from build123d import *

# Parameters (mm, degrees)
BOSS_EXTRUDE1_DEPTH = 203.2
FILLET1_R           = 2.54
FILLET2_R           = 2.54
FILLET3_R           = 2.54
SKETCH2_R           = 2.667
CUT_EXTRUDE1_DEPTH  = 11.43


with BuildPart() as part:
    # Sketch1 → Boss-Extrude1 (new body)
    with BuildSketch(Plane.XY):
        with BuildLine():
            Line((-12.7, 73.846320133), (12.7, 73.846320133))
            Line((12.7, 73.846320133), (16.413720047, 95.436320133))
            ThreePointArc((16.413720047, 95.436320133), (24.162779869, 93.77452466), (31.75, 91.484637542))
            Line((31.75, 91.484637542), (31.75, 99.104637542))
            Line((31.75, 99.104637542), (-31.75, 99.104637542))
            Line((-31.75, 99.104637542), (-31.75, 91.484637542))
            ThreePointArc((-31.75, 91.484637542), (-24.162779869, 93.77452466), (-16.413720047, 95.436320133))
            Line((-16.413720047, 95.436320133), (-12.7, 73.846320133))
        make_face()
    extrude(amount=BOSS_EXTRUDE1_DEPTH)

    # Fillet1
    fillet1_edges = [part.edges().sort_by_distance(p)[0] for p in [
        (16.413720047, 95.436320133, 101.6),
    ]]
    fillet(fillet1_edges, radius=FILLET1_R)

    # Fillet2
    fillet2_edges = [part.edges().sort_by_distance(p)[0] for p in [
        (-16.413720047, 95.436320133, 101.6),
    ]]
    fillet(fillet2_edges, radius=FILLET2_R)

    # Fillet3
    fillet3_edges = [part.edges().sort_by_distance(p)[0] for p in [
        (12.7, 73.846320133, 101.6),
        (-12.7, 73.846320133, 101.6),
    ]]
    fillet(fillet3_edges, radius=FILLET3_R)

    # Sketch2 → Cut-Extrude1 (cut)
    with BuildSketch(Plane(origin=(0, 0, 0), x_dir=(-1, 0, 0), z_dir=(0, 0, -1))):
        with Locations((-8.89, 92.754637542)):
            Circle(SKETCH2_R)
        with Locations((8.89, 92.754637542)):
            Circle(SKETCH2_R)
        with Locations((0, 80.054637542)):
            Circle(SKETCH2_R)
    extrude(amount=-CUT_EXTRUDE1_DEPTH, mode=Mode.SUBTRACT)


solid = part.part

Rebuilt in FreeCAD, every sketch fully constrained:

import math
import FreeCAD as App
import Part
import Sketcher
from FreeCAD import Vector
Q = App.Units.Quantity


def edges_at(feature, points):
    """Names of the edges that pass closest to the given points."""
    edges = feature.Shape.Edges
    near = lambda p: min(range(len(edges)), key=lambda i: edges[i].distToShape(Part.Vertex(*p))[0])
    return sorted({f"Edge{near(p) + 1}" for p in points})

doc = App.newDocument("Part")
body = doc.addObject("PartDesign::Body", "Body")

# Sketch on XY plane
sketch1 = doc.addObject("Sketcher::SketchObject", "Sketch")
body.addObject(sketch1)
sketch1.AttachmentSupport = (doc.XY_Plane, [""])
sketch1.MapMode = "FlatFace"
sketch1.addGeometry(Part.LineSegment(Vector(-13, 74, 0), Vector(13, 74, 0)), False)
sketch1.addGeometry(Part.LineSegment(Vector(13, 74, 0), Vector(16, 95, 0)), False)
sketch1.addGeometry(Part.ArcOfCircle(Part.Circle(Vector(0, 0, 0), Vector(0, 0, 1), 97), math.radians(70.86), math.radians(80.24)), False)
sketch1.addGeometry(Part.LineSegment(Vector(32, 91, 0), Vector(32, 99, 0)), False)
sketch1.addGeometry(Part.LineSegment(Vector(32, 99, 0), Vector(-32, 99, 0)), False)
sketch1.addGeometry(Part.LineSegment(Vector(-32, 99, 0), Vector(-32, 91, 0)), False)
sketch1.addGeometry(Part.ArcOfCircle(Part.Circle(Vector(0, 0, 0), Vector(0, 0, 1), 97), math.radians(99.76), math.radians(109.14)), False)
sketch1.addGeometry(Part.LineSegment(Vector(-16, 95, 0), Vector(-13, 74, 0)), False)
sketch1.addConstraint(Sketcher.Constraint("Coincident", 0, 2, 1, 1))
sketch1.addConstraint(Sketcher.Constraint("Coincident", 1, 2, 2, 2))
sketch1.addConstraint(Sketcher.Constraint("Coincident", 2, 1, 3, 1))
sketch1.addConstraint(Sketcher.Constraint("Coincident", 3, 2, 4, 1))
sketch1.addConstraint(Sketcher.Constraint("Coincident", 4, 2, 5, 1))
sketch1.addConstraint(Sketcher.Constraint("Coincident", 5, 2, 6, 2))
sketch1.addConstraint(Sketcher.Constraint("Coincident", 6, 1, 7, 1))
sketch1.addConstraint(Sketcher.Constraint("Coincident", 7, 2, 0, 1))
sketch1.addConstraint(Sketcher.Constraint("Horizontal", 0))
sketch1.addConstraint(Sketcher.Constraint("Vertical", 3))
sketch1.addConstraint(Sketcher.Constraint("Horizontal", 4))
sketch1.addConstraint(Sketcher.Constraint("Vertical", 5))
sketch1.addConstraint(Sketcher.Constraint("Coincident", 2, 3, -1, 1))
sketch1.addConstraint(Sketcher.Constraint("Coincident", 6, 3, -1, 1))
sketch1.addConstraint(Sketcher.Constraint("Equal", 2, 6))
sketch1.addConstraint(Sketcher.Constraint("Horizontal", 2, 1, 5, 2))
sketch1.addConstraint(Sketcher.Constraint("Horizontal", 1, 2, 6, 1))
sketch1.addConstraint(Sketcher.Constraint("Equal", 1, 7))
sketch1.addConstraint(Sketcher.Constraint("DistanceX", 0, 1, 0, 2, Q("1 in")))
sketch1.addConstraint(Sketcher.Constraint("DistanceX", 4, 2, 4, 1, Q("2.5 in")))
sketch1.addConstraint(Sketcher.Constraint("DistanceY", 3, 1, 3, 2, Q("0.3 in")))
sketch1.addConstraint(Sketcher.Constraint("Radius", 2, Q("3.8125 in")))
sketch1.addConstraint(Sketcher.Constraint("Angle", 1, Q("80.24 deg")))
sketch1.addConstraint(Sketcher.Constraint("DistanceY", 0, 2, 1, 2, Q("0.85 in")))
pad1 = doc.addObject("PartDesign::Pad", "Pad")
body.addObject(pad1)
pad1.Profile = sketch1
pad1.Length = Q("8 in")
doc.recompute()

fillet = doc.addObject("PartDesign::Fillet", "Fillet")
body.addObject(fillet)
fillet.Base = (pad1, edges_at(pad1, [(16.414, 95.436, 101.6)]))
fillet.Radius = Q("0.1 in")
doc.recompute()

fillet2 = doc.addObject("PartDesign::Fillet", "Fillet001")
body.addObject(fillet2)
fillet2.Base = (fillet, edges_at(fillet, [(-16.414, 95.436, 101.6)]))
fillet2.Radius = Q("0.1 in")
doc.recompute()

fillet3 = doc.addObject("PartDesign::Fillet", "Fillet002")
body.addObject(fillet3)
fillet3.Base = (fillet2, edges_at(fillet2, [(12.7, 73.846, 101.6), (-12.7, 73.846, 101.6)]))
fillet3.Radius = Q("0.1 in")

# Sketch on XY plane
sketch2 = doc.addObject("Sketcher::SketchObject", "Sketch001")
body.addObject(sketch2)
sketch2.AttachmentSupport = (doc.XY_Plane, [""])
sketch2.MapMode = "FlatFace"
sketch2.addGeometry(Part.Circle(Vector(8.9, 92.8, 0), Vector(0, 0, 1), 2.7), False)
sketch2.addGeometry(Part.Circle(Vector(-8.9, 92.8, 0), Vector(0, 0, 1), 2.7), False)
sketch2.addGeometry(Part.Circle(Vector(0, 80.1, 0), Vector(0, 0, 1), 2.7), False)
sketch2.addConstraint(Sketcher.Constraint("Equal", 0, 1))
sketch2.addConstraint(Sketcher.Constraint("Equal", 1, 2))
sketch2.addConstraint(Sketcher.Constraint("Symmetric", 0, 3, 1, 3, -2))
sketch2.addConstraint(Sketcher.Constraint("PointOnObject", 2, 3, -2))
sketch2.addConstraint(Sketcher.Constraint("Diameter", 0, Q("0.21 in")))
sketch2.addConstraint(Sketcher.Constraint("DistanceX", 1, 3, 0, 3, Q("0.7 in")))
sketch2.addConstraint(Sketcher.Constraint("DistanceY", 2, 3, 0, 3, Q("0.5 in")))
sketch2.addConstraint(Sketcher.Constraint("DistanceY", -1, 1, 0, 3, 92.754638))
pocket1 = doc.addObject("PartDesign::Pocket", "Pocket")
body.addObject(pocket1)
pocket1.Profile = sketch2
pocket1.Length = Q("0.45 in")
pocket1.Reversed = True

doc.recompute()
